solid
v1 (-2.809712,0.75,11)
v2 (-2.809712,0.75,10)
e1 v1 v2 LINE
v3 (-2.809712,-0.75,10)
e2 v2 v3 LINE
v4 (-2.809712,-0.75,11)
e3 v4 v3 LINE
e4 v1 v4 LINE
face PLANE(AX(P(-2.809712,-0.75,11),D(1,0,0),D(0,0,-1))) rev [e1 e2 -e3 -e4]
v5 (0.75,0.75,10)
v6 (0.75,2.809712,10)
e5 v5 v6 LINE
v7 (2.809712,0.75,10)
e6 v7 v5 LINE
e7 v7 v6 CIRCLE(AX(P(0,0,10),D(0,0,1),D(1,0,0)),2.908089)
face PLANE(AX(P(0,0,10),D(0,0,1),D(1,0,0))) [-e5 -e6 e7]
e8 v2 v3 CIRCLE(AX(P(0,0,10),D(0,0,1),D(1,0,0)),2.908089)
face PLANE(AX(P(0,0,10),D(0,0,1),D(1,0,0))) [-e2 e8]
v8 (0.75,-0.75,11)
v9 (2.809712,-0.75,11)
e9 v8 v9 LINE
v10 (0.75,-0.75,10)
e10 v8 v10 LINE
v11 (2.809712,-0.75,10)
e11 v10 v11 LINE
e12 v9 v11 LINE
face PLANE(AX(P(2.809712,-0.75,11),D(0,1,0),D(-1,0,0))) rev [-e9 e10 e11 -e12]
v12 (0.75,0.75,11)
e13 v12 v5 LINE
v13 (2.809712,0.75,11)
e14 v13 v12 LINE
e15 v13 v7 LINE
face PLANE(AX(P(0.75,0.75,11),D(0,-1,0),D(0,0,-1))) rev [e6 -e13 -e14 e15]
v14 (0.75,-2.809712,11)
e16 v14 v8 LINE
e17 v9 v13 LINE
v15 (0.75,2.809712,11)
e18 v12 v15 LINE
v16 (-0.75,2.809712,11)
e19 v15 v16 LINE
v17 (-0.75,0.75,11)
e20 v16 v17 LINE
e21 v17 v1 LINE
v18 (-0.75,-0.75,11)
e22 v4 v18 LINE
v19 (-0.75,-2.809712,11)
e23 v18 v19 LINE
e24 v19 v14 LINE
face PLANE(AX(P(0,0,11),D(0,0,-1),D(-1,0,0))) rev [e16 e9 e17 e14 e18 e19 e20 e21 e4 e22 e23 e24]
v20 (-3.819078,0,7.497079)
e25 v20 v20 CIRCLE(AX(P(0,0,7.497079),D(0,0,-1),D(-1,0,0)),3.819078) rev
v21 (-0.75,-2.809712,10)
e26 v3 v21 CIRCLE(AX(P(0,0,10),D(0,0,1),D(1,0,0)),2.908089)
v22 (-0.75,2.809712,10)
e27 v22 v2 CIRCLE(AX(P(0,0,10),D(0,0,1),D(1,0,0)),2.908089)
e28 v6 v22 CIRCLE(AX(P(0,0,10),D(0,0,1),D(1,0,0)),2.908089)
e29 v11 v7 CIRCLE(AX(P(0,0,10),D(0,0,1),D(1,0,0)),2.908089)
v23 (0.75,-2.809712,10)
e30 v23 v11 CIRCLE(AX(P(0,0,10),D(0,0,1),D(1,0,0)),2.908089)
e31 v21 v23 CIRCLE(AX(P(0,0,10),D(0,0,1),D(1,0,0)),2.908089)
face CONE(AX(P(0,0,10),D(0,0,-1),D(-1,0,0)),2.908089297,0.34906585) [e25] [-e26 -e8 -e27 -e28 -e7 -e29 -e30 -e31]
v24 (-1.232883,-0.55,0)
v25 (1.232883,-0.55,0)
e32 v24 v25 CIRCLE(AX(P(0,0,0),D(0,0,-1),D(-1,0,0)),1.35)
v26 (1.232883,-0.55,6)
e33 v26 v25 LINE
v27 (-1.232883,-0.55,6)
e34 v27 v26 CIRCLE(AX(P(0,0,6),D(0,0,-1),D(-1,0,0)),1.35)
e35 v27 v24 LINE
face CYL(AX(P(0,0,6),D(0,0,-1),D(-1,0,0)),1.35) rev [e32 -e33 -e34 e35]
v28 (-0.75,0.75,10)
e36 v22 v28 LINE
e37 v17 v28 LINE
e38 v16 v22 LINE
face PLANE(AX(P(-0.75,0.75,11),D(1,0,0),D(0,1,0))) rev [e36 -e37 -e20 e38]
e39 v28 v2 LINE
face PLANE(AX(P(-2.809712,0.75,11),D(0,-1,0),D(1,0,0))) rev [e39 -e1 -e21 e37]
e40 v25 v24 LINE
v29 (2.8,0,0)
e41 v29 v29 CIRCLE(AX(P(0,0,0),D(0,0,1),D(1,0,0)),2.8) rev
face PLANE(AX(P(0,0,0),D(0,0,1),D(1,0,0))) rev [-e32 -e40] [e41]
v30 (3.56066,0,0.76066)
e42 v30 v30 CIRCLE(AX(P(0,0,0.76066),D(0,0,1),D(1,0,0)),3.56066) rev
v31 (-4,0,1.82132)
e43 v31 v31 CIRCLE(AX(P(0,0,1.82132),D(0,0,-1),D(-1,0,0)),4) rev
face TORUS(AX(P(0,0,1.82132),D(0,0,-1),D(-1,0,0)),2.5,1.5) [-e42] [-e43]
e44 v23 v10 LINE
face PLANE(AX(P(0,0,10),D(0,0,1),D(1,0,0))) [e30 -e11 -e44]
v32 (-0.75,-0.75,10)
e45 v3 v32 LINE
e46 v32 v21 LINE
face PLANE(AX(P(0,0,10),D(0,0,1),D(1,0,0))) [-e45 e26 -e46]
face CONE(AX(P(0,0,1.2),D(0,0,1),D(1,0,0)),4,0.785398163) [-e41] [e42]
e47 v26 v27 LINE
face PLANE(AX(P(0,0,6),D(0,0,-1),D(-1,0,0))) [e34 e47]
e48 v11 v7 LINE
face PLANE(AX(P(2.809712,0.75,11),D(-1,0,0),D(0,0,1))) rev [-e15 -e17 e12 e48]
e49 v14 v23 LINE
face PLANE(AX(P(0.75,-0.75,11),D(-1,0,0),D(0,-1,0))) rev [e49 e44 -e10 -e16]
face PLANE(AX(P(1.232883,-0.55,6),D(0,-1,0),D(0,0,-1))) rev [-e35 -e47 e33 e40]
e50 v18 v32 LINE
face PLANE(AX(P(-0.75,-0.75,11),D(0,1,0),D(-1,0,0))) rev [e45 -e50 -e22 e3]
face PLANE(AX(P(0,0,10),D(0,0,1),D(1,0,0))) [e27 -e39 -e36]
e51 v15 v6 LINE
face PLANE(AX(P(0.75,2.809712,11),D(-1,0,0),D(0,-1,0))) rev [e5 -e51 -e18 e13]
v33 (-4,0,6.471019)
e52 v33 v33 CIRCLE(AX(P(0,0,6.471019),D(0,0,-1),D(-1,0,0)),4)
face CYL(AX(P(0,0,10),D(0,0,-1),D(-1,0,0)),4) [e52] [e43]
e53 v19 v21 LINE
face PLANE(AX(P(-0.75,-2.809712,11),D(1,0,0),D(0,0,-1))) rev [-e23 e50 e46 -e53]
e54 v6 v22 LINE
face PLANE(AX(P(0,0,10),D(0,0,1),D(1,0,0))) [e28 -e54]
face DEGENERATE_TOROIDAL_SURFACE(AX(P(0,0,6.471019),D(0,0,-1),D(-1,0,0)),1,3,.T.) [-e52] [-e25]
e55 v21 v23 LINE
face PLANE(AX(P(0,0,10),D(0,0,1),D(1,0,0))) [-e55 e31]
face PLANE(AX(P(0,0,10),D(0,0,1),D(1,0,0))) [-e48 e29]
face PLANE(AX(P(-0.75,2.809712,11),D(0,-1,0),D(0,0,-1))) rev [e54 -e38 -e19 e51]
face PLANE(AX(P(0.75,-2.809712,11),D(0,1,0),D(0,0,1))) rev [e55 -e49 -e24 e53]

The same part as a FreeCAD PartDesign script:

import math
import FreeCAD as App
import Part
import Sketcher
Q = App.Units.Quantity


def edges_at(feature, points):
    """Names of the edges that pass closest to the given points."""
    edges = feature.Shape.Edges
    near = lambda p: min(range(len(edges)), key=lambda i: edges[i].distToShape(Part.Vertex(*p))[0])
    return sorted({f"Edge{near(p) + 1}" for p in points})

doc = App.newDocument("Part")
body = doc.addObject("PartDesign::Body", "Body")

# Sketch on XY plane
sketch1 = doc.addObject("Sketcher::SketchObject", "Sketch")
body.addObject(sketch1)
sketch1.AttachmentSupport = (doc.XY_Plane, [""])
sketch1.MapMode = "FlatFace"
sketch1.addGeometry(Part.Circle(App.Vector(0, 0, 0), App.Vector(0, 0, 1), 4), False)
sketch1.addConstraint(Sketcher.Constraint("Coincident", 0, 3, -1, 1))
sketch1.addConstraint(Sketcher.Constraint("Diameter", 0, Q("8 mm")))
pad1 = doc.addObject("PartDesign::Pad", "Pad")
body.addObject(pad1)
pad1.Profile = sketch1
pad1.Length = 10
doc.recompute()

chamfer = doc.addObject("PartDesign::Chamfer", "Chamfer")
body.addObject(chamfer)
chamfer.Base = (pad1, edges_at(pad1, [(-4, 0, 10)]))
chamfer.ChamferType = "Two distances"
chamfer.Size = 3
chamfer.Size2 = 1.091911

# Sketch on XY plane
sketch2 = doc.addObject("Sketcher::SketchObject", "Sketch001")
body.addObject(sketch2)
sketch2.AttachmentSupport = (doc.XY_Plane, [""])
sketch2.MapMode = "FlatFace"
sketch2.addGeometry(Part.LineSegment(App.Vector(1.232883, -0.55, 0), App.Vector(-1.232883, -0.55, 0)), False)
sketch2.addGeometry(Part.ArcOfCircle(Part.Circle(App.Vector(0, 0, 0), App.Vector(0, 0, 1), 1.35), math.radians(-24.042076), math.radians(204.042076)), False)
sketch2.addConstraint(Sketcher.Constraint("Coincident", 0, 1, 1, 1))
sketch2.addConstraint(Sketcher.Constraint("Coincident", 1, 2, 0, 2))
sketch2.addConstraint(Sketcher.Constraint("Horizontal", 0))
sketch2.addConstraint(Sketcher.Constraint("Coincident", 1, 3, -1, 1))
sketch2.addConstraint(Sketcher.Constraint("Radius", 1, Q("1.35 mm")))
sketch2.addConstraint(Sketcher.Constraint("DistanceY", 0, 1, -1, 1, Q("0.55 mm")))
pocket1 = doc.addObject("PartDesign::Pocket", "Pocket")
body.addObject(pocket1)
pocket1.Profile = sketch2
pocket1.Length = 6
pocket1.Reversed = True
doc.recompute()

chamfer2 = doc.addObject("PartDesign::Chamfer", "Chamfer001")
body.addObject(chamfer2)
chamfer2.Base = (pocket1, edges_at(pocket1, [(-4, 0, 0)]))
chamfer2.Size = 1.2
doc.recompute()

fillet = doc.addObject("PartDesign::Fillet", "Fillet")
body.addObject(fillet)
fillet.Base = (chamfer2, edges_at(chamfer2, [(-4, 0, 7)]))
fillet.Radius = 3
doc.recompute()

fillet2 = doc.addObject("PartDesign::Fillet", "Fillet001")
body.addObject(fillet2)
fillet2.Base = (fillet, edges_at(fillet, [(-4, 0, 1.2)]))
fillet2.Radius = 1.5

# Sketch on XY plane
sketch3 = doc.addObject("Sketcher::SketchObject", "Sketch002")
body.addObject(sketch3)
sketch3.AttachmentSupport = (doc.XY_Plane, [""])
sketch3.MapMode = "FlatFace"
sketch3.AttachmentOffset = App.Placement(App.Vector(0, 0, 10), App.Rotation())
sketch3.addGeometry(Part.LineSegment(App.Vector(-0.75, 0.75, 0), App.Vector(-2.809712, 0.75, 0)), False)
sketch3.addGeometry(Part.LineSegment(App.Vector(-2.809712, 0.75, 0), App.Vector(-2.809712, -0.75, 0)), False)
sketch3.addGeometry(Part.LineSegment(App.Vector(-2.809712, -0.75, 0), App.Vector(-0.75, -0.75, 0)), False)
sketch3.addGeometry(Part.LineSegment(App.Vector(-0.75, -0.75, 0), App.Vector(-0.75, -2.809712, 0)), False)
sketch3.addGeometry(Part.LineSegment(App.Vector(-0.75, -2.809712, 0), App.Vector(0.75, -2.809712, 0)), False)
sketch3.addGeometry(Part.LineSegment(App.Vector(0.75, -2.809712, 0), App.Vector(0.75, -0.75, 0)), False)
sketch3.addGeometry(Part.LineSegment(App.Vector(0.75, -0.75, 0), App.Vector(2.809712, -0.75, 0)), False)
sketch3.addGeometry(Part.LineSegment(App.Vector(2.809712, -0.75, 0), App.Vector(2.809712, 0.75, 0)), False)
sketch3.addGeometry(Part.LineSegment(App.Vector(2.809712, 0.75, 0), App.Vector(0.75, 0.75, 0)), False)
sketch3.addGeometry(Part.LineSegment(App.Vector(0.75, 0.75, 0), App.Vector(0.75, 2.809712, 0)), False)
sketch3.addGeometry(Part.LineSegment(App.Vector(0.75, 2.809712, 0), App.Vector(-0.75, 2.809712, 0)), False)
sketch3.addGeometry(Part.LineSegment(App.Vector(-0.75, 2.809712, 0), App.Vector(-0.75, 0.75, 0)), False)
sketch3.addConstraint(Sketcher.Constraint("Coincident", 0, 2, 1, 1))
sketch3.addConstraint(Sketcher.Constraint("Coincident", 1, 2, 2, 1))
sketch3.addConstraint(Sketcher.Constraint("Coincident", 2, 2, 3, 1))
sketch3.addConstraint(Sketcher.Constraint("Coincident", 3, 2, 4, 1))
sketch3.addConstraint(Sketcher.Constraint("Coincident", 4, 2, 5, 1))
sketch3.addConstraint(Sketcher.Constraint("Coincident", 5, 2, 6, 1))
sketch3.addConstraint(Sketcher.Constraint("Coincident", 6, 2, 7, 1))
sketch3.addConstraint(Sketcher.Constraint("Coincident", 7, 2, 8, 1))
sketch3.addConstraint(Sketcher.Constraint("Coincident", 8, 2, 9, 1))
sketch3.addConstraint(Sketcher.Constraint("Coincident", 9, 2, 10, 1))
sketch3.addConstraint(Sketcher.Constraint("Coincident", 10, 2, 11, 1))
sketch3.addConstraint(Sketcher.Constraint("Coincident", 11, 2, 0, 1))
sketch3.addConstraint(Sketcher.Constraint("Horizontal", 0))
sketch3.addConstraint(Sketcher.Constraint("Vertical", 1))
sketch3.addConstraint(Sketcher.Constraint("Horizontal", 2))
sketch3.addConstraint(Sketcher.Constraint("Vertical", 3))
sketch3.addConstraint(Sketcher.Constraint("Horizontal", 4))
sketch3.addConstraint(Sketcher.Constraint("Vertical", 5))
sketch3.addConstraint(Sketcher.Constraint("Horizontal", 6))
sketch3.addConstraint(Sketcher.Constraint("Vertical", 7))
sketch3.addConstraint(Sketcher.Constraint("Horizontal", 8))
sketch3.addConstraint(Sketcher.Constraint("Vertical", 9))
sketch3.addConstraint(Sketcher.Constraint("Horizontal", 10))
sketch3.addConstraint(Sketcher.Constraint("Vertical", 11))
sketch3.addConstraint(Sketcher.Constraint("Symmetric", 0, 2, 6, 2, -1, 1))
sketch3.addConstraint(Sketcher.Constraint("Symmetric", 2, 2, 8, 2, -1, 1))
sketch3.addConstraint(Sketcher.Constraint("Symmetric", 4, 2, 10, 2, -1, 1))
sketch3.addConstraint(Sketcher.Constraint("Symmetric", 2, 2, 5, 2, -2))
sketch3.addConstraint(Sketcher.Constraint("Equal", 10, 1))
sketch3.addConstraint(Sketcher.Constraint("Equal", 8, 3))
sketch3.addConstraint(Sketcher.Constraint("DistanceX", 4, 1, 4, 2, Q("1.5 mm")))
sketch3.addConstraint(Sketcher.Constraint("DistanceX", 0, 2, 0, 1, Q("2.059712 mm")))
pad2 = doc.addObject("PartDesign::Pad", "Pad001")
body.addObject(pad2)
pad2.Profile = sketch3
pad2.Length = 1

doc.recompute()
